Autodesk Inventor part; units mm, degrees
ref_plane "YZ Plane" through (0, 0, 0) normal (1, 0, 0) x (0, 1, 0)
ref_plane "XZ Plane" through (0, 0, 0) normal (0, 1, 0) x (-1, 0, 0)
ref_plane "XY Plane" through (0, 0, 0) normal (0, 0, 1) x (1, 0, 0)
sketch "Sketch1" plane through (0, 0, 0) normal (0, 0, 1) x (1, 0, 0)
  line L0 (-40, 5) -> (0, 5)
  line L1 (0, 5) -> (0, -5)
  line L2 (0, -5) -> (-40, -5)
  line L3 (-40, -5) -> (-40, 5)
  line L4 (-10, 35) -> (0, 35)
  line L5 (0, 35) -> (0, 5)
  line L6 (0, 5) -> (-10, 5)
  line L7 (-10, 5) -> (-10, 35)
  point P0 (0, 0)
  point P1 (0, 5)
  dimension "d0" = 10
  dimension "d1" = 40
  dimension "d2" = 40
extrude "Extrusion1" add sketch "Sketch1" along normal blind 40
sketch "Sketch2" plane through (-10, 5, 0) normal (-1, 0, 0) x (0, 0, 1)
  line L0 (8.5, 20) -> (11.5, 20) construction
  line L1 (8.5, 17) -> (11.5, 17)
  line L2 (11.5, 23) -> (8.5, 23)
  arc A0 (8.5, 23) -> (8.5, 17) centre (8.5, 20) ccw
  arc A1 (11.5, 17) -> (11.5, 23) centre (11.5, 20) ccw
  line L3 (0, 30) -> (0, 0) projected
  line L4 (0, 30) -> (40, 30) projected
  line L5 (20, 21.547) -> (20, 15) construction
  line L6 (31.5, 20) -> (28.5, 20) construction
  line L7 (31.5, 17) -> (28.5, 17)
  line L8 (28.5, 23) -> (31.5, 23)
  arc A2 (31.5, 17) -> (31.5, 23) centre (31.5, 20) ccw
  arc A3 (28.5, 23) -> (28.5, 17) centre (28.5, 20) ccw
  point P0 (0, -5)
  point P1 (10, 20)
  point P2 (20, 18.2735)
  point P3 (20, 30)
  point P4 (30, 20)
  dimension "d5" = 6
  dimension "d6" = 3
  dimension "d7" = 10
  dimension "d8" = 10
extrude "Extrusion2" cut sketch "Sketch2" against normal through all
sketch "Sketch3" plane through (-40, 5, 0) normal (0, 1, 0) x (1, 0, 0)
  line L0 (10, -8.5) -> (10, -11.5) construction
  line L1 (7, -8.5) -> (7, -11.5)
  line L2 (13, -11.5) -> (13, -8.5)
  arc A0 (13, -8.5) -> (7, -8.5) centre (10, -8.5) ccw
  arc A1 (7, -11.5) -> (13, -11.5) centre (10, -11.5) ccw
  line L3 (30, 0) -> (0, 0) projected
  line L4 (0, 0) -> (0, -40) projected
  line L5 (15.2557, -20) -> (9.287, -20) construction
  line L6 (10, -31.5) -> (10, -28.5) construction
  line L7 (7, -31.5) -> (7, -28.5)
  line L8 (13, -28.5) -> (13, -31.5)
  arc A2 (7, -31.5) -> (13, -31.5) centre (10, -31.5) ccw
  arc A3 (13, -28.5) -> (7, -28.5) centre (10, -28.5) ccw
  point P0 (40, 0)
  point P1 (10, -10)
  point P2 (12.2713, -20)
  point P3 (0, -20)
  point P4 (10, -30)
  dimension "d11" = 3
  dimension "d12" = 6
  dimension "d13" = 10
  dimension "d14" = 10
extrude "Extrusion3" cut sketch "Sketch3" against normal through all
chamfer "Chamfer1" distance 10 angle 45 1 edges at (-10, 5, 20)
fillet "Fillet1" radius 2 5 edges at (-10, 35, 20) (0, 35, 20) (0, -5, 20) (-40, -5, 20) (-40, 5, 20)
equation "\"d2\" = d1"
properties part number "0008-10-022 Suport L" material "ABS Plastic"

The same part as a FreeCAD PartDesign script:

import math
import FreeCAD as App
import Part
import Sketcher
Q = App.Units.Quantity


def edges_at(feature, points):
    """Names of the edges that pass closest to the given points."""
    edges = feature.Shape.Edges
    near = lambda p: min(range(len(edges)), key=lambda i: edges[i].distToShape(Part.Vertex(*p))[0])
    return sorted({f"Edge{near(p) + 1}" for p in points})

doc = App.newDocument("Part")
body = doc.addObject("PartDesign::Body", "Body")

# Sketch on XY plane
sketch1 = body.newObject("Sketcher::SketchObject", "Sketch")
sketch1.AttachmentSupport = (doc.getObject("XY_Plane"), [""])
sketch1.MapMode = "FlatFace"
sketch1.addGeometry(Part.LineSegment(App.Vector(-10, 5, 0), App.Vector(-40, 5, 0)), False)
sketch1.addGeometry(Part.LineSegment(App.Vector(-40, 5, 0), App.Vector(-40, -5, 0)), False)
sketch1.addGeometry(Part.LineSegment(App.Vector(-40, -5, 0), App.Vector(0, -5, 0)), False)
sketch1.addGeometry(Part.LineSegment(App.Vector(0, -5, 0), App.Vector(0, 35, 0)), False)
sketch1.addGeometry(Part.LineSegment(App.Vector(0, 35, 0), App.Vector(-10, 35, 0)), False)
sketch1.addGeometry(Part.LineSegment(App.Vector(-10, 35, 0), App.Vector(-10, 5, 0)), False)
sketch1.addConstraint(Sketcher.Constraint("Coincident", 0, 2, 1, 1))
sketch1.addConstraint(Sketcher.Constraint("Coincident", 1, 2, 2, 1))
sketch1.addConstraint(Sketcher.Constraint("Coincident", 2, 2, 3, 1))
sketch1.addConstraint(Sketcher.Constraint("Coincident", 3, 2, 4, 1))
sketch1.addConstraint(Sketcher.Constraint("Coincident", 4, 2, 5, 1))
sketch1.addConstraint(Sketcher.Constraint("Coincident", 5, 2, 0, 1))
sketch1.addConstraint(Sketcher.Constraint("Horizontal", 0))
sketch1.addConstraint(Sketcher.Constraint("Vertical", 1))
sketch1.addConstraint(Sketcher.Constraint("Horizontal", 2))
sketch1.addConstraint(Sketcher.Constraint("Vertical", 3))
sketch1.addConstraint(Sketcher.Constraint("Horizontal", 4))
sketch1.addConstraint(Sketcher.Constraint("Vertical", 5))
sketch1.addConstraint(Sketcher.Constraint("PointOnObject", 2, 2, -2))
sketch1.addConstraint(Sketcher.Constraint("Equal", 4, 1))
sketch1.addConstraint(Sketcher.Constraint("Equal", 2, 3))
sketch1.addConstraint(Sketcher.Constraint("DistanceX", 2, 1, 2, 2, Q("40 mm")))
sketch1.addConstraint(Sketcher.Constraint("DistanceX", 4, 2, 4, 1, Q("10 mm")))
sketch1.addConstraint(Sketcher.Constraint("DistanceY", -1, 1, 0, 2, Q("5 mm")))
pad1 = body.newObject("PartDesign::Pad", "Pad")
pad1.Profile = sketch1
pad1.Length = 40

# Sketch on YZ plane
sketch2 = body.newObject("Sketcher::SketchObject", "Sketch001")
sketch2.AttachmentSupport = (doc.getObject("YZ_Plane"), [""])
sketch2.MapMode = "FlatFace"
sketch2.AttachmentOffset = App.Placement(App.Vector(0, 0, -10), App.Rotation())
sketch2.addGeometry(Part.ArcOfCircle(Part.Circle(App.Vector(25, 8.5, 0), App.Vector(0, 0, 1), 3), math.radians(180), math.radians(360)), False)
sketch2.addGeometry(Part.LineSegment(App.Vector(22, 8.5, 0), App.Vector(22, 11.5, 0)), False)
sketch2.addGeometry(Part.ArcOfCircle(Part.Circle(App.Vector(25, 11.5, 0), App.Vector(0, 0, 1), 3), math.radians(0), math.radians(180)), False)
sketch2.addGeometry(Part.LineSegment(App.Vector(28, 11.5, 0), App.Vector(28, 8.5, 0)), False)
sketch2.addGeometry(Part.LineSegment(App.Vector(22, 28.5, 0), App.Vector(22, 31.5, 0)), False)
sketch2.addGeometry(Part.ArcOfCircle(Part.Circle(App.Vector(25, 31.5, 0), App.Vector(0, 0, 1), 3), math.radians(0), math.radians(180)), False)
sketch2.addGeometry(Part.LineSegment(App.Vector(28, 31.5, 0), App.Vector(28, 28.5, 0)), False)
sketch2.addGeometry(Part.ArcOfCircle(Part.Circle(App.Vector(25, 28.5, 0), App.Vector(0, 0, 1), 3), math.radians(180), math.radians(360)), False)
sketch2.addConstraint(Sketcher.Constraint("Tangent", 0, 1, 1, 1))
sketch2.addConstraint(Sketcher.Constraint("Tangent", 1, 2, 2, 2))
sketch2.addConstraint(Sketcher.Constraint("Tangent", 2, 1, 3, 1))
sketch2.addConstraint(Sketcher.Constraint("Tangent", 3, 2, 0, 2))
sketch2.addConstraint(Sketcher.Constraint("Tangent", 4, 2, 5, 2))
sketch2.addConstraint(Sketcher.Constraint("Tangent", 5, 1, 6, 1))
sketch2.addConstraint(Sketcher.Constraint("Tangent", 6, 2, 7, 2))
sketch2.addConstraint(Sketcher.Constraint("Tangent", 7, 1, 4, 1))
sketch2.addConstraint(Sketcher.Constraint("Vertical", 1))
sketch2.addConstraint(Sketcher.Constraint("Vertical", 3))
sketch2.addConstraint(Sketcher.Constraint("Vertical", 4))
sketch2.addConstraint(Sketcher.Constraint("Vertical", 6))
sketch2.addConstraint(Sketcher.Constraint("Equal", 2, 5))
sketch2.addConstraint(Sketcher.Constraint("Vertical", 2, 3, 5, 3))
sketch2.addConstraint(Sketcher.Constraint("Equal", 3, 4))
sketch2.addConstraint(Sketcher.Constraint("Radius", 0, Q("3 mm")))
sketch2.addConstraint(Sketcher.Constraint("DistanceY", 1, 1, 1, 2, Q("3 mm")))
sketch2.addConstraint(Sketcher.Constraint("DistanceX", -1, 1, 0, 3, Q("25 mm")))
sketch2.addConstraint(Sketcher.Constraint("DistanceY", 2, 3, 5, 3, Q("20 mm")))
sketch2.addConstraint(Sketcher.Constraint("DistanceY", -1, 1, 0, 3, Q("8.5 mm")))
pocket1 = body.newObject("PartDesign::Pocket", "Pocket")
pocket1.Profile = sketch2
pocket1.Type = "ThroughAll"
pocket1.Reversed = True

# Sketch on XZ plane
sketch3 = body.newObject("Sketcher::SketchObject", "Sketch002")
sketch3.AttachmentSupport = (doc.getObject("XZ_Plane"), [""])
sketch3.MapMode = "FlatFace"
sketch3.AttachmentOffset = App.Placement(App.Vector(0, 0, -5), App.Rotation())
sketch3.addGeometry(Part.ArcOfCircle(Part.Circle(App.Vector(-30, 8.5, 0), App.Vector(0, 0, 1), 3), math.radians(180), math.radians(360)), False)
sketch3.addGeometry(Part.LineSegment(App.Vector(-33, 8.5, 0), App.Vector(-33, 11.5, 0)), False)
sketch3.addGeometry(Part.ArcOfCircle(Part.Circle(App.Vector(-30, 11.5, 0), App.Vector(0, 0, 1), 3), math.radians(0), math.radians(180)), False)
sketch3.addGeometry(Part.LineSegment(App.Vector(-27, 11.5, 0), App.Vector(-27, 8.5, 0)), False)
sketch3.addGeometry(Part.LineSegment(App.Vector(-33, 28.5, 0), App.Vector(-33, 31.5, 0)), False)
sketch3.addGeometry(Part.ArcOfCircle(Part.Circle(App.Vector(-30, 31.5, 0), App.Vector(0, 0, 1), 3), math.radians(0), math.radians(180)), False)
sketch3.addGeometry(Part.LineSegment(App.Vector(-27, 31.5, 0), App.Vector(-27, 28.5, 0)), False)
sketch3.addGeometry(Part.ArcOfCircle(Part.Circle(App.Vector(-30, 28.5, 0), App.Vector(0, 0, 1), 3), math.radians(180), math.radians(360)), False)
sketch3.addConstraint(Sketcher.Constraint("Tangent", 0, 1, 1, 1))
sketch3.addConstraint(Sketcher.Constraint("Tangent", 1, 2, 2, 2))
sketch3.addConstraint(Sketcher.Constraint("Tangent", 2, 1, 3, 1))
sketch3.addConstraint(Sketcher.Constraint("Tangent", 3, 2, 0, 2))
sketch3.addConstraint(Sketcher.Constraint("Tangent", 4, 2, 5, 2))
sketch3.addConstraint(Sketcher.Constraint("Tangent", 5, 1, 6, 1))
sketch3.addConstraint(Sketcher.Constraint("Tangent", 6, 2, 7, 2))
sketch3.addConstraint(Sketcher.Constraint("Tangent", 7, 1, 4, 1))
sketch3.addConstraint(Sketcher.Constraint("Vertical", 1))
sketch3.addConstraint(Sketcher.Constraint("Vertical", 3))
sketch3.addConstraint(Sketcher.Constraint("Vertical", 4))
sketch3.addConstraint(Sketcher.Constraint("Vertical", 6))
sketch3.addConstraint(Sketcher.Constraint("Equal", 2, 5))
sketch3.addConstraint(Sketcher.Constraint("Vertical", 2, 3, 5, 3))
sketch3.addConstraint(Sketcher.Constraint("Equal", 3, 4))
sketch3.addConstraint(Sketcher.Constraint("Radius", 0, Q("3 mm")))
sketch3.addConstraint(Sketcher.Constraint("DistanceY", 1, 1, 1, 2, Q("3 mm")))
sketch3.addConstraint(Sketcher.Constraint("DistanceX", 0, 3, -1, 1, Q("30 mm")))
sketch3.addConstraint(Sketcher.Constraint("DistanceY", 2, 3, 5, 3, Q("20 mm")))
sketch3.addConstraint(Sketcher.Constraint("DistanceY", -1, 1, 0, 3, Q("8.5 mm")))
pocket2 = body.newObject("PartDesign::Pocket", "Pocket001")
pocket2.Profile = sketch3
pocket2.Type = "ThroughAll"
pocket2.Reversed = True
doc.recompute()

chamfer = body.newObject("PartDesign::Chamfer", "Chamfer")
chamfer.Base = (pocket2, edges_at(pocket2, [(-10, 5, 20)]))
chamfer.Size = 10
doc.recompute()

fillet = body.newObject("PartDesign::Fillet", "Fillet")
fillet.Base = (chamfer, edges_at(chamfer, [
    (-10, 35, 20),
    (0, 35, 20),
    (0, -5, 20),
    (-40, -5, 20),
    (-40, 5, 20),
]))
fillet.Radius = 2

doc.recompute()
